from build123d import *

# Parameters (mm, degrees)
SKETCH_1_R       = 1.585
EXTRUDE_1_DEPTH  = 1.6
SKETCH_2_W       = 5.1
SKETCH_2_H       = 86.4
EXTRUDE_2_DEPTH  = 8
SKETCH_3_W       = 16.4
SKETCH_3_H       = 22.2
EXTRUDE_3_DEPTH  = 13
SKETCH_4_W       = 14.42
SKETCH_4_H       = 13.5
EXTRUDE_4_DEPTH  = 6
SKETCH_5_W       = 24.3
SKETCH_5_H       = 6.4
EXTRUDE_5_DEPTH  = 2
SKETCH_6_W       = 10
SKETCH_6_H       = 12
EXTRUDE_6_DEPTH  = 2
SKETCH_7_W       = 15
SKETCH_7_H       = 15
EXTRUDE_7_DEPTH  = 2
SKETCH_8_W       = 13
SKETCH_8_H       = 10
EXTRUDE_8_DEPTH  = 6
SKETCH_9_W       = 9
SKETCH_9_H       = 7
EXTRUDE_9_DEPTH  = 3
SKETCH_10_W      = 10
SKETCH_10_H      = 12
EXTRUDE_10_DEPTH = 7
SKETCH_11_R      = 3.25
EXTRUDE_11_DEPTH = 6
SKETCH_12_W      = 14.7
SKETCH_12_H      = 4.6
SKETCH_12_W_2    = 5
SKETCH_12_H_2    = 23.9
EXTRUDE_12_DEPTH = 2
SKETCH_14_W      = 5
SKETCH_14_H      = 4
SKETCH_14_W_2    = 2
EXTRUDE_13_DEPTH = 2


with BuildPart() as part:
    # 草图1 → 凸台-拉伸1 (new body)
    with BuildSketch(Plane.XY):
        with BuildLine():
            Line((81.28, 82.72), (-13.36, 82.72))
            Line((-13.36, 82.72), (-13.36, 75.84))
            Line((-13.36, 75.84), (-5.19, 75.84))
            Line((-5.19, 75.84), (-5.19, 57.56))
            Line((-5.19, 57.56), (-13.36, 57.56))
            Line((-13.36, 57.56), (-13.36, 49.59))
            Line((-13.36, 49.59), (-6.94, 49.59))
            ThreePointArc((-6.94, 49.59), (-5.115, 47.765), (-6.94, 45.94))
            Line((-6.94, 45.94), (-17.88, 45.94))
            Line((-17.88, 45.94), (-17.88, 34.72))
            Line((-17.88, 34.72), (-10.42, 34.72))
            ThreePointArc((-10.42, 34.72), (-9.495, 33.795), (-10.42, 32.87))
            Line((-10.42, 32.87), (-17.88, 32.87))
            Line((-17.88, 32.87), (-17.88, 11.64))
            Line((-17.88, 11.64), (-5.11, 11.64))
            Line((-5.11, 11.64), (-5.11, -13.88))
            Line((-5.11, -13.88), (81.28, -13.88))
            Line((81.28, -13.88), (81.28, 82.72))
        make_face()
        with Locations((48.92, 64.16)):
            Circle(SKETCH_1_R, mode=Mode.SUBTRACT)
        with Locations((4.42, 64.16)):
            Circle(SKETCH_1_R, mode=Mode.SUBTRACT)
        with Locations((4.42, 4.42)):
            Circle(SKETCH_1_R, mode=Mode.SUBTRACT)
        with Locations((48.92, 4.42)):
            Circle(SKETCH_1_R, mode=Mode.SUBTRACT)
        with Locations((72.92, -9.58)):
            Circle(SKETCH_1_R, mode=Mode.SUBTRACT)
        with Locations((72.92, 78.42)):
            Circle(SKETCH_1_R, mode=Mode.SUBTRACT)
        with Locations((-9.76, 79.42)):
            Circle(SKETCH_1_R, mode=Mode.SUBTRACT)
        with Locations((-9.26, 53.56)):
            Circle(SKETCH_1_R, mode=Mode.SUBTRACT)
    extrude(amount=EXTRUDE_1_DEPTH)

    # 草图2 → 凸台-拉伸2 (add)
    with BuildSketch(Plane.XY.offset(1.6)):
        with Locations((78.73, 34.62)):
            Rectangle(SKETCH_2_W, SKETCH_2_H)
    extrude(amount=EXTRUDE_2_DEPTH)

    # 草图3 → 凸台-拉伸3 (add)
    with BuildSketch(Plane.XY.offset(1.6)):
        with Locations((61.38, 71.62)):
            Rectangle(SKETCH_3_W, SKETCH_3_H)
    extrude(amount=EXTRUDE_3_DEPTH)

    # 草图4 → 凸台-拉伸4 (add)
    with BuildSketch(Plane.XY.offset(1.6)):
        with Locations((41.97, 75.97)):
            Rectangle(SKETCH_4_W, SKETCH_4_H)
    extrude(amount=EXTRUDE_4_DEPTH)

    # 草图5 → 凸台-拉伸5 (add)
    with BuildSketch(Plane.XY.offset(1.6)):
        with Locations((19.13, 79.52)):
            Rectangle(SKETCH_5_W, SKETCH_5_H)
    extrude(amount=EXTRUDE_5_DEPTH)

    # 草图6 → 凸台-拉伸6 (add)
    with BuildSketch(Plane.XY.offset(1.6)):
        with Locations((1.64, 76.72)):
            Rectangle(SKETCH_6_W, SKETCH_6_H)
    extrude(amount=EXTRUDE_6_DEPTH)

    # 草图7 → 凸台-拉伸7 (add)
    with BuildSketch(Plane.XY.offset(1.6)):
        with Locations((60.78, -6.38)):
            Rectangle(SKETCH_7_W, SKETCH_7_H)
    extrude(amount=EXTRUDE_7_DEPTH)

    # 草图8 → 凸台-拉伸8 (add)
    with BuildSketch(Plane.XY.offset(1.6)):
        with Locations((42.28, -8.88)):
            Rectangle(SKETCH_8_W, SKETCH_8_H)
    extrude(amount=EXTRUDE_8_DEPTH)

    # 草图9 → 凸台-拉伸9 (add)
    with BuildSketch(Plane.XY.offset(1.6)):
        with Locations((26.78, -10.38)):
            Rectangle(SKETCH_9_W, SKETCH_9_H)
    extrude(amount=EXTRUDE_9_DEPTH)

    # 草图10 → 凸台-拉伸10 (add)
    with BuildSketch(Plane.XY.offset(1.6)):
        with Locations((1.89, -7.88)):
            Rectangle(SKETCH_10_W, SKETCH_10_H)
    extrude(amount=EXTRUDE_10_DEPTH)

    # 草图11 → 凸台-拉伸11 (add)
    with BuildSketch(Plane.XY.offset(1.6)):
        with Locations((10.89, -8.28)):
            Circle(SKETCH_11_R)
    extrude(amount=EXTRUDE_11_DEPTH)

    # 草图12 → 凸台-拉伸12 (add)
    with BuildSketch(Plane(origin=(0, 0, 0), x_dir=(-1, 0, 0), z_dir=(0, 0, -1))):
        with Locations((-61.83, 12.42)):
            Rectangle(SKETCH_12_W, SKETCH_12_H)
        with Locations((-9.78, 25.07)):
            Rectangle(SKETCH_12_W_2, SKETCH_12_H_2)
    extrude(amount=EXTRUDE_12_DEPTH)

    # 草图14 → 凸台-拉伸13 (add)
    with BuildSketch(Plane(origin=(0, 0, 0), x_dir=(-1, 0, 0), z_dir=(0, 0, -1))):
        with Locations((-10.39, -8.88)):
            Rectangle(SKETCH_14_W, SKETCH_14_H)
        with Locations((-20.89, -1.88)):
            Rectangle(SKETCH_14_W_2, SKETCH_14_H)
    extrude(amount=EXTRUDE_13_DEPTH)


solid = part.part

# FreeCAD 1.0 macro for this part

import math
import FreeCAD as App
import Part
import Sketcher
from FreeCAD import Vector
Q = App.Units.Quantity


def add_polygon(sketch, points):
    """Adds a closed chain of lines whose ends are joined by coincident constraints."""
    first, n = sketch.GeometryCount, len(points)
    for a, b in zip(points, points[1:] + points[:1]):
        sketch.addGeometry(Part.LineSegment(App.Vector(*a, 0), App.Vector(*b, 0)), False)
    for i in range(n):
        sketch.addConstraint(Sketcher.Constraint("Coincident", first + i, 2, first + (i + 1) % n, 1))

doc = App.newDocument("Part")
body = doc.addObject("PartDesign::Body", "Body")

sketch1 = body.newObject("Sketcher::SketchObject", "Sketch")
sketch1.AttachmentSupport = (doc.getObject("XY_Plane"), [""])
sketch1.MapMode = "FlatFace"
sketch1.addGeometry([
    Part.LineSegment(Vector(81.28, 82.72, 0), Vector(-13.36, 82.72, 0)),
    Part.LineSegment(Vector(-13.36, 82.72, 0), Vector(-13.36, 75.84, 0)),
    Part.LineSegment(Vector(-13.36, 75.84, 0), Vector(-5.19, 75.84, 0)),
    Part.LineSegment(Vector(-5.19, 75.84, 0), Vector(-5.19, 57.56, 0)),
    Part.LineSegment(Vector(-5.19, 57.56, 0), Vector(-13.36, 57.56, 0)),
    Part.LineSegment(Vector(-13.36, 57.56, 0), Vector(-13.36, 49.59, 0)),
    Part.LineSegment(Vector(-13.36, 49.59, 0), Vector(-6.94, 49.59, 0)),
    Part.ArcOfCircle(Part.Circle(Vector(-6.94, 47.765, 0), Vector(0, 0, 1), 1.825), math.radians(-90), math.radians(90)),
    Part.LineSegment(Vector(-6.94, 45.94, 0), Vector(-17.88, 45.94, 0)),
    Part.LineSegment(Vector(-17.88, 45.94, 0), Vector(-17.88, 34.72, 0)),
    Part.LineSegment(Vector(-17.88, 34.72, 0), Vector(-10.42, 34.72, 0)),
    Part.ArcOfCircle(Part.Circle(Vector(-10.42, 33.795, 0), Vector(0, 0, 1), 0.925), math.radians(-90), math.radians(90)),
    Part.LineSegment(Vector(-10.42, 32.87, 0), Vector(-17.88, 32.87, 0)),
    Part.LineSegment(Vector(-17.88, 32.87, 0), Vector(-17.88, 11.64, 0)),
    Part.LineSegment(Vector(-17.88, 11.64, 0), Vector(-5.11, 11.64, 0)),
    Part.LineSegment(Vector(-5.11, 11.64, 0), Vector(-5.11, -13.88, 0)),
    Part.LineSegment(Vector(-5.11, -13.88, 0), Vector(81.28, -13.88, 0)),
    Part.LineSegment(Vector(81.28, -13.88, 0), Vector(81.28, 82.72, 0)),
    Part.Circle(Vector(4.42, 4.42, 0), Vector(0, 0, 1), 1.585),
    Part.Circle(Vector(48.92, 4.42, 0), Vector(0, 0, 1), 1.585),
    Part.Circle(Vector(72.92, -9.58, 0), Vector(0, 0, 1), 1.585),
    Part.Circle(Vector(-9.26, 53.56, 0), Vector(0, 0, 1), 1.585),
    Part.Circle(Vector(4.42, 64.16, 0), Vector(0, 0, 1), 1.585),
    Part.Circle(Vector(-9.76, 79.42, 0), Vector(0, 0, 1), 1.585),
    Part.Circle(Vector(48.92, 64.16, 0), Vector(0, 0, 1), 1.585),
    Part.Circle(Vector(72.92, 78.42, 0), Vector(0, 0, 1), 1.585),
], False)
sketch1.addConstraint([
    Sketcher.Constraint("Coincident", 0, 2, 1, 1),
    Sketcher.Constraint("Coincident", 1, 2, 2, 1),
    Sketcher.Constraint("Coincident", 2, 2, 3, 1),
    Sketcher.Constraint("Coincident", 3, 2, 4, 1),
    Sketcher.Constraint("Coincident", 4, 2, 5, 1),
    Sketcher.Constraint("Coincident", 5, 2, 6, 1),
    Sketcher.Constraint("Tangent", 6, 2, 7, 2),
    Sketcher.Constraint("Tangent", 7, 1, 8, 1),
    Sketcher.Constraint("Coincident", 8, 2, 9, 1),
    Sketcher.Constraint("Coincident", 9, 2, 10, 1),
    Sketcher.Constraint("Tangent", 10, 2, 11, 2),
    Sketcher.Constraint("Tangent", 11, 1, 12, 1),
    Sketcher.Constraint("Coincident", 12, 2, 13, 1),
    Sketcher.Constraint("Coincident", 13, 2, 14, 1),
    Sketcher.Constraint("Coincident", 14, 2, 15, 1),
    Sketcher.Constraint("Coincident", 15, 2, 16, 1),
    Sketcher.Constraint("Coincident", 16, 2, 17, 1),
    Sketcher.Constraint("Coincident", 17, 2, 0, 1),
    Sketcher.Constraint("Horizontal", 0),
    Sketcher.Constraint("Vertical", 1),
    Sketcher.Constraint("Horizontal", 2),
    Sketcher.Constraint("Vertical", 3),
    Sketcher.Constraint("Horizontal", 4),
    Sketcher.Constraint("Vertical", 5),
    Sketcher.Constraint("Horizontal", 6),
    Sketcher.Constraint("Horizontal", 8),
    Sketcher.Constraint("Vertical", 9),
    Sketcher.Constraint("Horizontal", 10),
    Sketcher.Constraint("Horizontal", 12),
    Sketcher.Constraint("Vertical", 13),
    Sketcher.Constraint("Horizontal", 14),
    Sketcher.Constraint("Vertical", 15),
    Sketcher.Constraint("Horizontal", 16),
    Sketcher.Constraint("Vertical", 17),
    Sketcher.Constraint("Equal", 18, 19),
    Sketcher.Constraint("Equal", 19, 20),
    Sketcher.Constraint("Equal", 20, 21),
    Sketcher.Constraint("Equal", 21, 22),
    Sketcher.Constraint("Equal", 22, 23),
    Sketcher.Constraint("Equal", 23, 24),
    Sketcher.Constraint("Equal", 24, 25),
    Sketcher.Constraint("Horizontal", 18, 3, 19, 3),
    Sketcher.Constraint("Horizontal", 22, 3, 24, 3),
    Sketcher.Constraint("Vertical", 18, 3, 22, 3),
    Sketcher.Constraint("Vertical", 19, 3, 24, 3),
    Sketcher.Constraint("Vertical", 20, 3, 25, 3),
    Sketcher.Constraint("Vertical", 1, 2, 4, 2),
    Sketcher.Constraint("Vertical", 9, 2, 12, 2),
    Sketcher.Constraint("Diameter", 18, Q("3.17 mm")),
    Sketcher.Constraint("DistanceY", 17, 1, 17, 2, Q("96.6 mm")),
    Sketcher.Constraint("Radius", 7, Q("1.825 mm")),
    Sketcher.Constraint("Radius", 11, Q("0.925 mm")),
    Sketcher.Constraint("DistanceX", 19, 3, 20, 3, Q("24 mm")),
    Sketcher.Constraint("DistanceY", 20, 3, 19, 3, Q("14 mm")),
    Sketcher.Constraint("DistanceY", 18, 3, 23, 3, Q("75 mm")),
    Sketcher.Constraint("DistanceY", 19, 3, 25, 3, Q("74 mm")),
    Sketcher.Constraint("DistanceY", 21, 3, 3, 2, Q("4 mm")),
    Sketcher.Constraint("DistanceX", 0, 2, 0, 1, Q("94.64 mm")),
    Sketcher.Constraint("DistanceX", 2, 1, 2, 2, Q("8.17 mm")),
    Sketcher.Constraint("DistanceX", 6, 1, 6, 2, Q("6.42 mm")),
    Sketcher.Constraint("DistanceX", 8, 2, 8, 1, Q("10.94 mm")),
    Sketcher.Constraint("DistanceX", 10, 1, 10, 2, Q("7.46 mm")),
    Sketcher.Constraint("DistanceX", 14, 1, 14, 2, Q("12.77 mm")),
    Sketcher.Constraint("DistanceY", 1, 2, 1, 1, Q("6.88 mm")),
    Sketcher.Constraint("DistanceY", 3, 2, 3, 1, Q("18.28 mm")),
    Sketcher.Constraint("DistanceY", 5, 2, 5, 1, Q("7.97 mm")),
    Sketcher.Constraint("DistanceY", 9, 2, 9, 1, Q("11.22 mm")),
    Sketcher.Constraint("DistanceY", 13, 2, 13, 1, Q("21.23 mm")),
    Sketcher.Constraint("DistanceX", 18, 3, 19, 3, Q("44.5 mm")),
    Sketcher.Constraint("DistanceY", 21, 3, 22, 3, Q("10.6 mm")),
    Sketcher.Constraint("DistanceX", 23, 3, 21, 3, Q("0.5 mm")),
    Sketcher.Constraint("DistanceX", 0, 2, 23, 3, Q("3.6 mm")),
    Sketcher.Constraint("DistanceY", 23, 3, 0, 2, Q("3.3 mm")),
    Sketcher.Constraint("DistanceX", 13, 2, 18, 3, Q("22.3 mm")),
    Sketcher.Constraint("DistanceX", 7, 3, -1, 1, Q("6.94 mm")),
    Sketcher.Constraint("DistanceY", -1, 1, 18, 3, Q("4.42 mm")),
])
pad1 = body.newObject("PartDesign::Pad", "Pad")
pad1.Profile = sketch1
pad1.Length = 1.6

sketch2 = body.newObject("Sketcher::SketchObject", "Sketch001")
sketch2.AttachmentSupport = (doc.getObject("XY_Plane"), [""])
sketch2.MapMode = "FlatFace"
sketch2.AttachmentOffset = App.Placement(Vector(0, 0, 1.6), App.Rotation())
add_polygon(sketch2, [(76.18, 77.82), (76.18, -8.58), (81.28, -8.58), (81.28, 77.82)])
sketch2.addConstraint([
    Sketcher.Constraint("Vertical", 0),
    Sketcher.Constraint("Horizontal", 1),
    Sketcher.Constraint("Vertical", 2),
    Sketcher.Constraint("Horizontal", 3),
    Sketcher.Constraint("DistanceX", 1, 1, 1, 2, Q("5.1 mm")),
    Sketcher.Constraint("DistanceY", 0, 2, 0, 1, Q("86.4 mm")),
    Sketcher.Constraint("DistanceX", -1, 1, 0, 2, Q("76.18 mm")),
    Sketcher.Constraint("DistanceY", 0, 2, -1, 1, Q("8.58 mm")),
])
pad2 = body.newObject("PartDesign::Pad", "Pad001")
pad2.Profile = sketch2
pad2.Length = 8

sketch3 = body.newObject("Sketcher::SketchObject", "Sketch002")
sketch3.AttachmentSupport = (doc.getObject("XY_Plane"), [""])
sketch3.MapMode = "FlatFace"
sketch3.AttachmentOffset = App.Placement(Vector(0, 0, 1.6), App.Rotation())
add_polygon(sketch3, [(53.18, 82.72), (53.18, 60.52), (69.58, 60.52), (69.58, 82.72)])
sketch3.addConstraint([
    Sketcher.Constraint("Vertical", 0),
    Sketcher.Constraint("Horizontal", 1),
    Sketcher.Constraint("Vertical", 2),
    Sketcher.Constraint("Horizontal", 3),
    Sketcher.Constraint("DistanceX", 1, 1, 1, 2, Q("16.4 mm")),
    Sketcher.Constraint("DistanceY", 0, 2, 0, 1, Q("22.2 mm")),
    Sketcher.Constraint("DistanceX", -1, 1, 0, 2, Q("53.18 mm")),
    Sketcher.Constraint("DistanceY", -1, 1, 0, 2, Q("60.52 mm")),
])
pad3 = body.newObject("PartDesign::Pad", "Pad002")
pad3.Profile = sketch3
pad3.Length = 13

sketch4 = body.newObject("Sketcher::SketchObject", "Sketch003")
sketch4.AttachmentSupport = (doc.getObject("XY_Plane"), [""])
sketch4.MapMode = "FlatFace"
sketch4.AttachmentOffset = App.Placement(Vector(0, 0, 1.6), App.Rotation())
add_polygon(sketch4, [(34.76, 82.72), (34.76, 69.22), (49.18, 69.22), (49.18, 82.72)])
sketch4.addConstraint([
    Sketcher.Constraint("Vertical", 0),
    Sketcher.Constraint("Horizontal", 1),
    Sketcher.Constraint("Vertical", 2),
    Sketcher.Constraint("Horizontal", 3),
    Sketcher.Constraint("DistanceY", 0, 2, 0, 1, Q("13.5 mm")),
    Sketcher.Constraint("DistanceX", 1, 1, 1, 2, Q("14.42 mm")),
    Sketcher.Constraint("DistanceX", -1, 1, 0, 2, Q("34.76 mm")),
    Sketcher.Constraint("DistanceY", -1, 1, 0, 2, Q("69.22 mm")),
])
pad4 = body.newObject("PartDesign::Pad", "Pad003")
pad4.Profile = sketch4
pad4.Length = 6

sketch5 = body.newObject("Sketcher::SketchObject", "Sketch004")
sketch5.AttachmentSupport = (doc.getObject("XY_Plane"), [""])
sketch5.MapMode = "FlatFace"
sketch5.AttachmentOffset = App.Placement(Vector(0, 0, 1.6), App.Rotation())
add_polygon(sketch5, [(6.98, 82.72), (6.98, 76.32), (31.28, 76.32), (31.28, 82.72)])
sketch5.addConstraint([
    Sketcher.Constraint("Vertical", 0),
    Sketcher.Constraint("Horizontal", 1),
    Sketcher.Constraint("Vertical", 2),
    Sketcher.Constraint("Horizontal", 3),
    Sketcher.Constraint("DistanceX", 1, 1, 1, 2, Q("24.3 mm")),
    Sketcher.Constraint("DistanceY", 0, 2, 0, 1, Q("6.4 mm")),
    Sketcher.Constraint("DistanceX", -1, 1, 0, 2, Q("6.98 mm")),
    Sketcher.Constraint("DistanceY", -1, 1, 0, 2, Q("76.32 mm")),
])
pad5 = body.newObject("PartDesign::Pad", "Pad004")
pad5.Profile = sketch5
pad5.Length = 2

sketch6 = body.newObject("Sketcher::SketchObject", "Sketch005")
sketch6.AttachmentSupport = (doc.getObject("XY_Plane"), [""])
sketch6.MapMode = "FlatFace"
sketch6.AttachmentOffset = App.Placement(Vector(0, 0, 1.6), App.Rotation())
add_polygon(sketch6, [(-3.36, 82.72), (-3.36, 70.72), (6.64, 70.72), (6.64, 82.72)])
sketch6.addConstraint([
    Sketcher.Constraint("Vertical", 0),
    Sketcher.Constraint("Horizontal", 1),
    Sketcher.Constraint("Vertical", 2),
    Sketcher.Constraint("Horizontal", 3),
    Sketcher.Constraint("DistanceX", 1, 1, 1, 2, Q("10 mm")),
    Sketcher.Constraint("DistanceY", 0, 2, 0, 1, Q("12 mm")),
    Sketcher.Constraint("DistanceX", 0, 2, -1, 1, Q("3.36 mm")),
    Sketcher.Constraint("DistanceY", -1, 1, 0, 2, Q("70.72 mm")),
])
pad6 = body.newObject("PartDesign::Pad", "Pad005")
pad6.Profile = sketch6
pad6.Length = 2

sketch7 = body.newObject("Sketcher::SketchObject", "Sketch006")
sketch7.AttachmentSupport = (doc.getObject("XY_Plane"), [""])
sketch7.MapMode = "FlatFace"
sketch7.AttachmentOffset = App.Placement(Vector(0, 0, 1.6), App.Rotation())
add_polygon(sketch7, [(53.28, 1.12), (53.28, -13.88), (68.28, -13.88), (68.28, 1.12)])
sketch7.addConstraint([
    Sketcher.Constraint("Vertical", 0),
    Sketcher.Constraint("Horizontal", 1),
    Sketcher.Constraint("Vertical", 2),
    Sketcher.Constraint("Horizontal", 3),
    Sketcher.Constraint("Equal", 3, 0),
    Sketcher.Constraint("DistanceX", 1, 1, 1, 2, Q("15 mm")),
    Sketcher.Constraint("DistanceX", -1, 1, 0, 2, Q("53.28 mm")),
    Sketcher.Constraint("DistanceY", 0, 2, -1, 1, Q("13.88 mm")),
])
pad7 = body.newObject("PartDesign::Pad", "Pad006")
pad7.Profile = sketch7
pad7.Length = 2

sketch8 = body.newObject("Sketcher::SketchObject", "Sketch007")
sketch8.AttachmentSupport = (doc.getObject("XY_Plane"), [""])
sketch8.MapMode = "FlatFace"
sketch8.AttachmentOffset = App.Placement(Vector(0, 0, 1.6), App.Rotation())
add_polygon(sketch8, [(35.78, -3.88), (35.78, -13.88), (48.78, -13.88), (48.78, -3.88)])
sketch8.addConstraint([
    Sketcher.Constraint("Vertical", 0),
    Sketcher.Constraint("Horizontal", 1),
    Sketcher.Constraint("Vertical", 2),
    Sketcher.Constraint("Horizontal", 3),
    Sketcher.Constraint("DistanceX", 1, 1, 1, 2, Q("13 mm")),
    Sketcher.Constraint("DistanceY", 0, 2, 0, 1, Q("10 mm")),
    Sketcher.Constraint("DistanceX", -1, 1, 0, 2, Q("35.78 mm")),
    Sketcher.Constraint("DistanceY", 0, 2, -1, 1, Q("13.88 mm")),
])
pad8 = body.newObject("PartDesign::Pad", "Pad007")
pad8.Profile = sketch8
pad8.Length = 6

sketch9 = body.newObject("Sketcher::SketchObject", "Sketch008")
sketch9.AttachmentSupport = (doc.getObject("XY_Plane"), [""])
sketch9.MapMode = "FlatFace"
sketch9.AttachmentOffset = App.Placement(Vector(0, 0, 1.6), App.Rotation())
add_polygon(sketch9, [(22.28, -6.88), (22.28, -13.88), (31.28, -13.88), (31.28, -6.88)])
sketch9.addConstraint([
    Sketcher.Constraint("Vertical", 0),
    Sketcher.Constraint("Horizontal", 1),
    Sketcher.Constraint("Vertical", 2),
    Sketcher.Constraint("Horizontal", 3),
    Sketcher.Constraint("DistanceX", 1, 1, 1, 2, Q("9 mm")),
    Sketcher.Constraint("DistanceY", 0, 2, 0, 1, Q("7 mm")),
    Sketcher.Constraint("DistanceX", -1, 1, 0, 2, Q("22.28 mm")),
    Sketcher.Constraint("DistanceY", 0, 2, -1, 1, Q("13.88 mm")),
])
pad9 = body.newObject("PartDesign::Pad", "Pad008")
pad9.Profile = sketch9
pad9.Length = 3

sketch10 = body.newObject("Sketcher::SketchObject", "Sketch009")
sketch10.AttachmentSupport = (doc.getObject("XY_Plane"), [""])
sketch10.MapMode = "FlatFace"
sketch10.AttachmentOffset = App.Placement(Vector(0, 0, 1.6), App.Rotation())
add_polygon(sketch10, [(-3.11, -1.88), (-3.11, -13.88), (6.89, -13.88), (6.89, -1.88)])
sketch10.addConstraint([
    Sketcher.Constraint("Vertical", 0),
    Sketcher.Constraint("Horizontal", 1),
    Sketcher.Constraint("Vertical", 2),
    Sketcher.Constraint("Horizontal", 3),
    Sketcher.Constraint("DistanceX", 1, 1, 1, 2, Q("10 mm")),
    Sketcher.Constraint("DistanceY", 0, 2, 0, 1, Q("12 mm")),
    Sketcher.Constraint("DistanceX", 0, 2, -1, 1, Q("3.11 mm")),
    Sketcher.Constraint("DistanceY", 0, 2, -1, 1, Q("13.88 mm")),
])
pad10 = body.newObject("PartDesign::Pad", "Pad009")
pad10.Profile = sketch10
pad10.Length = 7

sketch11 = body.newObject("Sketcher::SketchObject", "Sketch010")
sketch11.AttachmentSupport = (doc.getObject("XY_Plane"), [""])
sketch11.MapMode = "FlatFace"
sketch11.AttachmentOffset = App.Placement(Vector(0, 0, 1.6), App.Rotation())
sketch11.addGeometry(Part.Circle(Vector(10.89, -8.28, 0), Vector(0, 0, 1), 3.25), False)
sketch11.addConstraint([
    Sketcher.Constraint("Diameter", 0, Q("6.5 mm")),
    Sketcher.Constraint("DistanceX", -1, 1, 0, 3, Q("10.89 mm")),
    Sketcher.Constraint("DistanceY", 0, 3, -1, 1, Q("8.28 mm")),
])
pad11 = body.newObject("PartDesign::Pad", "Pad010")
pad11.Profile = sketch11
pad11.Length = 6

sketch12 = body.newObject("Sketcher::SketchObject", "Sketch011")
sketch12.AttachmentSupport = (doc.getObject("XY_Plane"), [""])
sketch12.MapMode = "FlatFace"
add_polygon(sketch12, [(69.18, 14.72), (69.18, 10.12), (54.48, 10.12), (54.48, 14.72)])
add_polygon(sketch12, [(12.28, 37.02), (12.28, 13.12), (7.28, 13.12), (7.28, 37.02)])
sketch12.addConstraint([
    Sketcher.Constraint("Vertical", 0),
    Sketcher.Constraint("Horizontal", 1),
    Sketcher.Constraint("Vertical", 2),
    Sketcher.Constraint("Horizontal", 3),
    Sketcher.Constraint("Vertical", 4),
    Sketcher.Constraint("Horizontal", 5),
    Sketcher.Constraint("Vertical", 6),
    Sketcher.Constraint("Horizontal", 7),
    Sketcher.Constraint("DistanceX", 5, 2, 5, 1, Q("5 mm")),
    Sketcher.Constraint("DistanceX", 1, 2, 1, 1, Q("14.7 mm")),
    Sketcher.Constraint("DistanceY", 0, 2, 0, 1, Q("4.6 mm")),
    Sketcher.Constraint("DistanceY", 4, 2, 4, 1, Q("23.9 mm")),
    Sketcher.Constraint("DistanceY", 1, 2, 4, 2, Q("3 mm")),
    Sketcher.Constraint("DistanceX", 4, 2, 2, 2, Q("42.2 mm")),
    Sketcher.Constraint("DistanceX", -1, 1, 0, 2, Q("69.18 mm")),
    Sketcher.Constraint("DistanceY", -1, 1, 0, 2, Q("10.12 mm")),
])
pad12 = body.newObject("PartDesign::Pad", "Pad011")
pad12.Profile = sketch12
pad12.Length = 2
pad12.Reversed = True

sketch13 = body.newObject("Sketcher::SketchObject", "Sketch012")
sketch13.AttachmentSupport = (doc.getObject("XY_Plane"), [""])
sketch13.MapMode = "FlatFace"
add_polygon(sketch13, [(12.89, -6.88), (12.89, -10.88), (7.89, -10.88), (7.89, -6.88)])
add_polygon(sketch13, [(21.89, 0.12), (21.89, -3.88), (19.89, -3.88), (19.89, 0.12)])
sketch13.addConstraint([
    Sketcher.Constraint("Vertical", 0),
    Sketcher.Constraint("Horizontal", 1),
    Sketcher.Constraint("Vertical", 2),
    Sketcher.Constraint("Horizontal", 3),
    Sketcher.Constraint("Vertical", 4),
    Sketcher.Constraint("Horizontal", 5),
    Sketcher.Constraint("Vertical", 6),
    Sketcher.Constraint("Horizontal", 7),
    Sketcher.Constraint("Equal", 2, 4),
    Sketcher.Constraint("DistanceX", 1, 2, 1, 1, Q("5 mm")),
    Sketcher.Constraint("DistanceX", 5, 2, 5, 1, Q("2 mm")),
    Sketcher.Constraint("DistanceY", 0, 2, 0, 1, Q("4 mm")),
    Sketcher.Constraint("DistanceX", 3, 2, 4, 2, Q("9 mm")),
    Sketcher.Constraint("DistanceY", 3, 2, 4, 2, Q("3 mm")),
    Sketcher.Constraint("DistanceX", -1, 1, 0, 2, Q("12.89 mm")),
    Sketcher.Constraint("DistanceY", 0, 2, -1, 1, Q("10.88 mm")),
])
pad13 = body.newObject("PartDesign::Pad", "Pad012")
pad13.Profile = sketch13
pad13.Length = 2
pad13.Reversed = True

doc.recompute()
